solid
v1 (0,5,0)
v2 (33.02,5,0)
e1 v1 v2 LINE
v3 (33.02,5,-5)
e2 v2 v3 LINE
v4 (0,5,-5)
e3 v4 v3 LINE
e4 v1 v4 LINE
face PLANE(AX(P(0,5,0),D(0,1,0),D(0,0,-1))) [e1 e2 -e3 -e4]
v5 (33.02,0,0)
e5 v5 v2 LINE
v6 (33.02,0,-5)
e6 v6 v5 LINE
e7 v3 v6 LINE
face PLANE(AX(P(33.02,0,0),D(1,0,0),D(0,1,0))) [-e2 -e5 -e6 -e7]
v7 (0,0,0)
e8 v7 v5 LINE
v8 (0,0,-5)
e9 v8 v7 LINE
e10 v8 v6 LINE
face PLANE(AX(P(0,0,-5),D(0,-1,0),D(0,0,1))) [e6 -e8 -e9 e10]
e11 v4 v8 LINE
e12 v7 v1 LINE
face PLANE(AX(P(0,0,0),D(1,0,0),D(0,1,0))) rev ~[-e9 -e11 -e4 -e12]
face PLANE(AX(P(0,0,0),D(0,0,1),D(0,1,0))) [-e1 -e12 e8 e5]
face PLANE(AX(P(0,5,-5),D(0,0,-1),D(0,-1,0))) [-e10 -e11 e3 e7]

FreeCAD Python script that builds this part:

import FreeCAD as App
import Part
import Sketcher

V = App.Vector
Q = App.Units.Quantity

doc = App.newDocument("Part")
body = doc.addObject("PartDesign::Body", "Body")

sketch1 = doc.addObject("Sketcher::SketchObject", "Sketch")
body.addObject(sketch1)
sketch1.AttachmentSupport = (doc.YZ_Plane, [""])
sketch1.MapMode = "FlatFace"
sketch1.addGeometry(Part.LineSegment(V(5, 0, 0), V(0, 0, 0)), False)
sketch1.addGeometry(Part.LineSegment(V(0, 0, 0), V(0, -5, 0)), False)
sketch1.addGeometry(Part.LineSegment(V(0, -5, 0), V(5, -5, 0)), False)
sketch1.addGeometry(Part.LineSegment(V(5, -5, 0), V(5, 0, 0)), False)
sketch1.addConstraint(Sketcher.Constraint("Coincident", 0, 2, 1, 1))
sketch1.addConstraint(Sketcher.Constraint("Coincident", 1, 2, 2, 1))
sketch1.addConstraint(Sketcher.Constraint("Coincident", 2, 2, 3, 1))
sketch1.addConstraint(Sketcher.Constraint("Coincident", 3, 2, 0, 1))
sketch1.addConstraint(Sketcher.Constraint("Horizontal", 0))
sketch1.addConstraint(Sketcher.Constraint("Vertical", 1))
sketch1.addConstraint(Sketcher.Constraint("Horizontal", 2))
sketch1.addConstraint(Sketcher.Constraint("Vertical", 3))
sketch1.addConstraint(Sketcher.Constraint("Coincident", 0, 2, -1, 1))
sketch1.addConstraint(Sketcher.Constraint("Equal", 2, 1))
sketch1.addConstraint(Sketcher.Constraint("DistanceX", 0, 2, 0, 1, Q("5 mm")))
pad1 = doc.addObject("PartDesign::Pad", "Pad")
body.addObject(pad1)
pad1.Profile = sketch1
pad1.Length = 33.02

doc.recompute()
